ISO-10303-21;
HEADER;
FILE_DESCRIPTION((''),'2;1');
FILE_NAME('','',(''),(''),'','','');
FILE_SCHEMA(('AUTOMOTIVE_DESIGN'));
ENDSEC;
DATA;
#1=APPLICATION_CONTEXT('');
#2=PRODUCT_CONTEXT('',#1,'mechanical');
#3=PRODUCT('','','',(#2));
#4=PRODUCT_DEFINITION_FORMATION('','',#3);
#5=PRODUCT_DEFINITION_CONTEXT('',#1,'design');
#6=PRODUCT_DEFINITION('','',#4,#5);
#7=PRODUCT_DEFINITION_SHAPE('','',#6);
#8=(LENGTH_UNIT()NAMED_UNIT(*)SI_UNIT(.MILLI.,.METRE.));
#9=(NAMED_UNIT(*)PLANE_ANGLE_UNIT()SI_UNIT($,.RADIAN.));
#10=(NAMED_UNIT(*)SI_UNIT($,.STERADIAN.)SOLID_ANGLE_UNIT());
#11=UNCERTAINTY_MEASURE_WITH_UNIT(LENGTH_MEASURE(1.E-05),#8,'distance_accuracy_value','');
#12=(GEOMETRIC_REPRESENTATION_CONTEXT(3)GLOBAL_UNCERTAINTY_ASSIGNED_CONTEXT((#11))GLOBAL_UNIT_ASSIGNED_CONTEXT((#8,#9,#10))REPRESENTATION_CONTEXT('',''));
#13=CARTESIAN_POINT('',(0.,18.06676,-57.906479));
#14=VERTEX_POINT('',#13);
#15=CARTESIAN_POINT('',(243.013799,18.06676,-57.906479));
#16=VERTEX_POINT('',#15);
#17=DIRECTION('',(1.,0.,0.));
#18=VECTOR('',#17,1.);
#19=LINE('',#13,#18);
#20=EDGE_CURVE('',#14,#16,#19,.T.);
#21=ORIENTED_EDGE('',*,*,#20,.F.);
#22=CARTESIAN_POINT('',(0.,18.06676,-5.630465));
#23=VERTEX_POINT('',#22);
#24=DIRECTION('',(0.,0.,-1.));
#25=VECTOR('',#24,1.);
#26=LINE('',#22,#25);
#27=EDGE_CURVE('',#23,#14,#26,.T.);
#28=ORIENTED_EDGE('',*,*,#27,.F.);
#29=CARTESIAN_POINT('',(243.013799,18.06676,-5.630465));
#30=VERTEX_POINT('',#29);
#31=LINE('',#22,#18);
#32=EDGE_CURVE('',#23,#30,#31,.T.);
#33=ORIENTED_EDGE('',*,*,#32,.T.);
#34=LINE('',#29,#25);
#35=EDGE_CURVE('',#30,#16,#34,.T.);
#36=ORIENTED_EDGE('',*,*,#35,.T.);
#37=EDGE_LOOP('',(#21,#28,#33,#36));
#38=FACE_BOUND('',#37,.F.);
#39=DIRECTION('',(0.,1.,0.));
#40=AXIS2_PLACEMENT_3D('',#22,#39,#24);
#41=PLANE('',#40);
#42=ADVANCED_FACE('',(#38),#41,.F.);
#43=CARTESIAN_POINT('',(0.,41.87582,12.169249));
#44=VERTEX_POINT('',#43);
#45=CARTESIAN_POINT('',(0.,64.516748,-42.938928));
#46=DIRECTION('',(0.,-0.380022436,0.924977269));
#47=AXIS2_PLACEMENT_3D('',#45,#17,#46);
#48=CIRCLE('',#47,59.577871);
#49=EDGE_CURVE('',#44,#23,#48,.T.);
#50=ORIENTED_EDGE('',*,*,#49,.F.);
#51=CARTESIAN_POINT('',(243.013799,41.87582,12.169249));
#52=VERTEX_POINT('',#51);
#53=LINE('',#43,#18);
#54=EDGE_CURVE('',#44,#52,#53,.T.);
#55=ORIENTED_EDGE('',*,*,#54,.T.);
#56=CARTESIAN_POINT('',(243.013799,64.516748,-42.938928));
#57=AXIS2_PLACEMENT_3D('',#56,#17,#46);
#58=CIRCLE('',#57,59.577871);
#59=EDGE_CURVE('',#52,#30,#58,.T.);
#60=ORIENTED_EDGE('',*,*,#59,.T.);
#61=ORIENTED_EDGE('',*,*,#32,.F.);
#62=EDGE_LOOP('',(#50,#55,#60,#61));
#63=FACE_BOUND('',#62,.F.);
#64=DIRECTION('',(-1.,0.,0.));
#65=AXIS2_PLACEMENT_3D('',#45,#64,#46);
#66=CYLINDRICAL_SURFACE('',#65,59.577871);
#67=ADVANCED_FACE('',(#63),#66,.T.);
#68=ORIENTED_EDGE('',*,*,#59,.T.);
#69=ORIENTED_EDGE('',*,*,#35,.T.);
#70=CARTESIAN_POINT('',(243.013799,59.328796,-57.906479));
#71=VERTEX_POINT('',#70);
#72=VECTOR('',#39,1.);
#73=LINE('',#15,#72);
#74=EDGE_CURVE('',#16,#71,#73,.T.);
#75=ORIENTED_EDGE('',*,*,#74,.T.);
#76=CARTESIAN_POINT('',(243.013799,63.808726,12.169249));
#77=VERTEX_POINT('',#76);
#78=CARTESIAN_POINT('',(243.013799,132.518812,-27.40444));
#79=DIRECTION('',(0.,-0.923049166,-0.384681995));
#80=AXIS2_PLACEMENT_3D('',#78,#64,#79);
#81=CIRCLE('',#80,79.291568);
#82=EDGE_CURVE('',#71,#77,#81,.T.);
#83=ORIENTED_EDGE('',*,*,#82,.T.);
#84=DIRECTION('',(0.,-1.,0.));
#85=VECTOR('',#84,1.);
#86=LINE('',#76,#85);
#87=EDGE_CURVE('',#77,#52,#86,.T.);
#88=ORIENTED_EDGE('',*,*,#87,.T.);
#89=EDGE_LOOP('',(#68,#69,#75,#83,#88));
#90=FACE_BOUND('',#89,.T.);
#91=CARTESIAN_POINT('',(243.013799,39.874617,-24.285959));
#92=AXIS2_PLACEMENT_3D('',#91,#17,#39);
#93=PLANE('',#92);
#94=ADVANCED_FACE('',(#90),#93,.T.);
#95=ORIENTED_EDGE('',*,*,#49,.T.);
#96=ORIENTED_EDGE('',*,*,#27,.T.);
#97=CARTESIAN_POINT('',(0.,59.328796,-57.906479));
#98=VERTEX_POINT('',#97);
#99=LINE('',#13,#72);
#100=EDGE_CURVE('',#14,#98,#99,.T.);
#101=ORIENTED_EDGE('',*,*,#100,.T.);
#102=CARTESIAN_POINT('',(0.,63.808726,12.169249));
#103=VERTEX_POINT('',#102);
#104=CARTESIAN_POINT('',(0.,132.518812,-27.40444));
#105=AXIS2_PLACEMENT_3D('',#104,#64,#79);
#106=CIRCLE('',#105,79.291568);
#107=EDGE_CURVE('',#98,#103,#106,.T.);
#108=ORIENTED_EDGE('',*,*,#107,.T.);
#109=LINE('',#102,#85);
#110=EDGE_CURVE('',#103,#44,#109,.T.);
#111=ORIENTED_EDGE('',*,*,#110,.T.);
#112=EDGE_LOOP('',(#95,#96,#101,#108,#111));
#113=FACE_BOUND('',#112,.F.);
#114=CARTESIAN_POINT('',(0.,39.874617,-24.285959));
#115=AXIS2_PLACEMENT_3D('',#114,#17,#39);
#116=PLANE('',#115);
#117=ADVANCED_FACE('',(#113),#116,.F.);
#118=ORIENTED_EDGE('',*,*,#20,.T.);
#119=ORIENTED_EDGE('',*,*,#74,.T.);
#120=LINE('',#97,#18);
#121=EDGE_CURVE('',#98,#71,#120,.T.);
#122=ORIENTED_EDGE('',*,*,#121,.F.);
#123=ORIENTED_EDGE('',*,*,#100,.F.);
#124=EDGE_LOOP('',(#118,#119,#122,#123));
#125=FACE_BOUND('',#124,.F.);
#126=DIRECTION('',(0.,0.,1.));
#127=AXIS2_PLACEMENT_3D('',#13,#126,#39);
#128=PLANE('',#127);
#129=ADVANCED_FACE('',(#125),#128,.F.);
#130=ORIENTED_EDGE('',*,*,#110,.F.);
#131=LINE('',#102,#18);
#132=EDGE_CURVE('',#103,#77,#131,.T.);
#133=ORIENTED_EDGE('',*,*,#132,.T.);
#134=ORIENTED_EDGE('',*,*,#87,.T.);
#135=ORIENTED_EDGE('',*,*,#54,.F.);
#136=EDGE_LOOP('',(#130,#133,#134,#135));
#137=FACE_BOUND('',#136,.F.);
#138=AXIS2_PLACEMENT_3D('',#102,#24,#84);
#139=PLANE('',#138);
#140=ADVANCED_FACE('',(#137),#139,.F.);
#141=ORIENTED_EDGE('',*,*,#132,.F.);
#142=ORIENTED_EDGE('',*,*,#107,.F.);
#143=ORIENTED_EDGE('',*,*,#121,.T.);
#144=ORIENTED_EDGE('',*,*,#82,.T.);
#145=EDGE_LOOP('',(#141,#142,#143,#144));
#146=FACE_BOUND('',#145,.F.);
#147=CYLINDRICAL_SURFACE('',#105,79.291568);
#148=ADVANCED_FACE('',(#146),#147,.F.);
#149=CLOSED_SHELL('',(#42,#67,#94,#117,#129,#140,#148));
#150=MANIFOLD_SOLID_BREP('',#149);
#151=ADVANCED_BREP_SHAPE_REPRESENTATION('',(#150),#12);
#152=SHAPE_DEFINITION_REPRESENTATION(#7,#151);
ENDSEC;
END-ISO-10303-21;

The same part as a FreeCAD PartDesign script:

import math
import FreeCAD as App
import Part
import Sketcher

V = App.Vector
Q = App.Units.Quantity

doc = App.newDocument("Part")
params = doc.addObject("Spreadsheet::Sheet", "Params")
for row, (alias, value) in enumerate([
    ("pad1_length", "243.013799 mm"),
], start=1):
    params.set(f"A{row}", alias)
    params.set(f"B{row}", "=" + value)
    params.setAlias(f"B{row}", alias)

body = doc.addObject("PartDesign::Body", "Body")

sketch1 = body.newObject("Sketcher::SketchObject", "Sketch")
sketch1.AttachmentSupport = (doc.getObject("YZ_Plane"), [""])
sketch1.MapMode = "FlatFace"
sketch1.addGeometry([
    Part.LineSegment(V(18, -6, 0), V(18, -58, 0)),
    Part.LineSegment(V(18, -58, 0), V(59, -58, 0)),
    Part.ArcOfCircle(Part.Circle(V(133, -27, 0), V(0, 0, 1), 79), math.radians(150), math.radians(203)),
    Part.LineSegment(V(64, 12, 0), V(42, 12, 0)),
    Part.ArcOfCircle(Part.Circle(V(65, -43, 0), V(0, 0, 1), 60), math.radians(112), math.radians(141)),
], False)
sketch1.addConstraint([
    Sketcher.Constraint("Coincident", 0, 2, 1, 1),
    Sketcher.Constraint("Coincident", 1, 2, 2, 2),
    Sketcher.Constraint("Coincident", 2, 1, 3, 1),
    Sketcher.Constraint("Coincident", 3, 2, 4, 1),
    Sketcher.Constraint("Coincident", 4, 2, 0, 1),
    Sketcher.Constraint("Vertical", 0),
    Sketcher.Constraint("Horizontal", 1),
    Sketcher.Constraint("Horizontal", 3),
    Sketcher.Constraint("Radius", 2, Q("79.291568 mm")),
    Sketcher.Constraint("Radius", 4, Q("59.577871 mm")),
    Sketcher.Constraint("DistanceX", 1, 1, 1, 2, Q("41.262036 mm")),
    Sketcher.Constraint("DistanceX", 3, 2, 3, 1, Q("21.932906 mm")),
    Sketcher.Constraint("DistanceY", 0, 2, 0, 1, Q("52.276014 mm")),
    Sketcher.Constraint("DistanceY", 2, 3, -1, 1, Q("27.40444 mm")),
    Sketcher.Constraint("DistanceX", -1, 1, 0, 2, Q("18.06676 mm")),
    Sketcher.Constraint("DistanceY", 0, 2, -1, 1, Q("57.906479 mm")),
    Sketcher.Constraint("DistanceY", -1, 1, 2, 1, Q("12.169249 mm")),
])
pad1 = body.newObject("PartDesign::Pad", "Pad")
pad1.Profile = sketch1
pad1.setExpression("Length", "Params.pad1_length")

doc.recompute()
